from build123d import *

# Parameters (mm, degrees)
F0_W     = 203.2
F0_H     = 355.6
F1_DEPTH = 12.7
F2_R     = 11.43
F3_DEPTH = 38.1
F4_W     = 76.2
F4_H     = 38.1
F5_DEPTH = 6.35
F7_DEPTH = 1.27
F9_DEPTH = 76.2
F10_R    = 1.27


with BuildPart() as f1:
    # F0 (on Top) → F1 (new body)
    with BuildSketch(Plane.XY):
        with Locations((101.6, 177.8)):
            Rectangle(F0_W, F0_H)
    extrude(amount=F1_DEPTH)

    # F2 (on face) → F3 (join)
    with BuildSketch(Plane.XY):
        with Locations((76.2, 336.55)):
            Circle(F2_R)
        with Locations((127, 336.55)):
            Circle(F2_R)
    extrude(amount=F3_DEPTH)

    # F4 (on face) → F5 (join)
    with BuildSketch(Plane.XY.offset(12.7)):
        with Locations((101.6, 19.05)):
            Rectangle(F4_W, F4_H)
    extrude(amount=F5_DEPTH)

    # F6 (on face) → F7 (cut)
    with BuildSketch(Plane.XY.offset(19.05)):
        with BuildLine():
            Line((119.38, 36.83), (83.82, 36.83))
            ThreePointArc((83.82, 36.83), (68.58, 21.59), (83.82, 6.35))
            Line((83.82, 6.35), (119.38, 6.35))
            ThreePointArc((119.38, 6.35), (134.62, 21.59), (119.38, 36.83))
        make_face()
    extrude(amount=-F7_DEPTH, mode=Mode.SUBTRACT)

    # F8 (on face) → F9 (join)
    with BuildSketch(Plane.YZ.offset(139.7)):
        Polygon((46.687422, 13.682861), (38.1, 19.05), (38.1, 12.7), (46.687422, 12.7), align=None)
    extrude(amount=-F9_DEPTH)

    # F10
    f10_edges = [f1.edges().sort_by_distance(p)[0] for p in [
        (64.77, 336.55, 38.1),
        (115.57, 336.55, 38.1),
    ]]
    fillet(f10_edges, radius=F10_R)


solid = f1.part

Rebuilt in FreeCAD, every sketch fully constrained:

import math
import FreeCAD as App
import Part
import Sketcher

V = App.Vector
Q = App.Units.Quantity


def edges_at(feature, points):
    """Names of the edges that pass closest to the given points."""
    edges = feature.Shape.Edges
    near = lambda p: min(range(len(edges)), key=lambda i: edges[i].distToShape(Part.Vertex(*p))[0])
    return sorted({f"Edge{near(p) + 1}" for p in points})

doc = App.newDocument("Part")
params = doc.addObject("Spreadsheet::Sheet", "Params")
for row, (alias, value) in enumerate([
    ("sketch1_width", "8 in"),
    ("sketch1_height", "14 in"),
    ("pad1_length", "0.5 in"),
    ("sketch2_diameter", "0.9 in"),
    ("pad2_length", "1.5 in"),
    ("sketch3_width", "3 in"),
    ("sketch3_height", "1.5 in"),
    ("pad3_length", "0.25 in"),
    ("sketch4_radius", "0.6 in"),
    ("sketch4_width", "1.4 in"),
    ("pocket1_length", "0.05 in"),
    ("sketch5_height", "0.25 in"),
    ("pad4_length", "3 in"),
    ("fillet_radius", "0.05 in"),
], start=1):
    params.set(f"A{row}", alias)
    params.set(f"B{row}", "=" + value)
    params.setAlias(f"B{row}", alias)

body = doc.addObject("PartDesign::Body", "Body")

sketch1 = body.newObject("Sketcher::SketchObject", "Sketch")
sketch1.AttachmentSupport = (doc.getObject("XY_Plane"), [""])
sketch1.MapMode = "FlatFace"
sketch1.addGeometry(Part.LineSegment(V(0, 356, 0), V(0, 0, 0)), False)
sketch1.addGeometry(Part.LineSegment(V(0, 0, 0), V(203, 0, 0)), False)
sketch1.addGeometry(Part.LineSegment(V(203, 0, 0), V(203, 356, 0)), False)
sketch1.addGeometry(Part.LineSegment(V(203, 356, 0), V(0, 356, 0)), False)
sketch1.addConstraint(Sketcher.Constraint("Coincident", 0, 2, 1, 1))
sketch1.addConstraint(Sketcher.Constraint("Coincident", 1, 2, 2, 1))
sketch1.addConstraint(Sketcher.Constraint("Coincident", 2, 2, 3, 1))
sketch1.addConstraint(Sketcher.Constraint("Coincident", 3, 2, 0, 1))
sketch1.addConstraint(Sketcher.Constraint("Vertical", 0))
sketch1.addConstraint(Sketcher.Constraint("Horizontal", 1))
sketch1.addConstraint(Sketcher.Constraint("Vertical", 2))
sketch1.addConstraint(Sketcher.Constraint("Horizontal", 3))
sketch1.addConstraint(Sketcher.Constraint("Coincident", 0, 2, -1, 1))
sketch1.addConstraint(Sketcher.Constraint("DistanceX", 1, 1, 1, 2, Q("8 in")))
sketch1.addConstraint(Sketcher.Constraint("DistanceY", 0, 2, 0, 1, Q("14 in")))
sketch1.setExpression("Constraints[9]", "Params.sketch1_width")
sketch1.setExpression("Constraints[10]", "Params.sketch1_height")
pad1 = body.newObject("PartDesign::Pad", "Pad")
pad1.Profile = sketch1
pad1.setExpression("Length", "Params.pad1_length")

sketch2 = body.newObject("Sketcher::SketchObject", "Sketch001")
sketch2.AttachmentSupport = (doc.getObject("XY_Plane"), [""])
sketch2.MapMode = "FlatFace"
sketch2.addGeometry(Part.Circle(V(76, 337, 0), V(0, 0, 1), 11), False)
sketch2.addGeometry(Part.Circle(V(127, 337, 0), V(0, 0, 1), 11), False)
sketch2.addConstraint(Sketcher.Constraint("Equal", 0, 1))
sketch2.addConstraint(Sketcher.Constraint("Horizontal", 0, 3, 1, 3))
sketch2.addConstraint(Sketcher.Constraint("Diameter", 0, Q("0.9 in")))
sketch2.addConstraint(Sketcher.Constraint("DistanceX", -1, 1, 0, 3, Q("3 in")))
sketch2.addConstraint(Sketcher.Constraint("DistanceX", -1, 1, 1, 3, Q("5 in")))
sketch2.addConstraint(Sketcher.Constraint("DistanceY", -1, 1, 0, 3, Q("13.25 in")))
sketch2.setExpression("Constraints[2]", "Params.sketch2_diameter")
pad2 = body.newObject("PartDesign::Pad", "Pad001")
pad2.Profile = sketch2
pad2.setExpression("Length", "Params.pad2_length")

sketch3 = body.newObject("Sketcher::SketchObject", "Sketch002")
sketch3.AttachmentSupport = (doc.getObject("XY_Plane"), [""])
sketch3.MapMode = "FlatFace"
sketch3.AttachmentOffset = App.Placement(V(0, 0, 0.5 * 25.4), App.Rotation())
sketch3.addGeometry(Part.LineSegment(V(64, 38, 0), V(64, 0, 0)), False)
sketch3.addGeometry(Part.LineSegment(V(64, 0, 0), V(140, 0, 0)), False)
sketch3.addGeometry(Part.LineSegment(V(140, 0, 0), V(140, 38, 0)), False)
sketch3.addGeometry(Part.LineSegment(V(140, 38, 0), V(64, 38, 0)), False)
sketch3.addConstraint(Sketcher.Constraint("Coincident", 0, 2, 1, 1))
sketch3.addConstraint(Sketcher.Constraint("Coincident", 1, 2, 2, 1))
sketch3.addConstraint(Sketcher.Constraint("Coincident", 2, 2, 3, 1))
sketch3.addConstraint(Sketcher.Constraint("Coincident", 3, 2, 0, 1))
sketch3.addConstraint(Sketcher.Constraint("Vertical", 0))
sketch3.addConstraint(Sketcher.Constraint("Horizontal", 1))
sketch3.addConstraint(Sketcher.Constraint("Vertical", 2))
sketch3.addConstraint(Sketcher.Constraint("Horizontal", 3))
sketch3.addConstraint(Sketcher.Constraint("PointOnObject", 0, 2, -1))
sketch3.addConstraint(Sketcher.Constraint("DistanceX", 1, 1, 1, 2, Q("3 in")))
sketch3.addConstraint(Sketcher.Constraint("DistanceY", 0, 2, 0, 1, Q("1.5 in")))
sketch3.addConstraint(Sketcher.Constraint("DistanceX", -1, 1, 0, 2, Q("2.5 in")))
sketch3.setExpression("Constraints[9]", "Params.sketch3_width")
sketch3.setExpression("Constraints[10]", "Params.sketch3_height")
pad3 = body.newObject("PartDesign::Pad", "Pad002")
pad3.Profile = sketch3
pad3.setExpression("Length", "Params.pad3_length")

sketch4 = body.newObject("Sketcher::SketchObject", "Sketch003")
sketch4.AttachmentSupport = (doc.getObject("XY_Plane"), [""])
sketch4.MapMode = "FlatFace"
sketch4.AttachmentOffset = App.Placement(V(0, 0, 0.75 * 25.4), App.Rotation())
sketch4.addGeometry(Part.LineSegment(V(119, 37, 0), V(84, 37, 0)), False)
sketch4.addGeometry(Part.ArcOfCircle(Part.Circle(V(84, 22, 0), V(0, 0, 1), 15), math.radians(90), math.radians(270)), False)
sketch4.addGeometry(Part.LineSegment(V(84, 6, 0), V(119, 6, 0)), False)
sketch4.addGeometry(Part.ArcOfCircle(Part.Circle(V(119, 22, 0), V(0, 0, 1), 15), math.radians(-90), math.radians(90)), False)
sketch4.addConstraint(Sketcher.Constraint("Tangent", 0, 2, 1, 1))
sketch4.addConstraint(Sketcher.Constraint("Tangent", 1, 2, 2, 1))
sketch4.addConstraint(Sketcher.Constraint("Tangent", 2, 2, 3, 1))
sketch4.addConstraint(Sketcher.Constraint("Tangent", 3, 2, 0, 1))
sketch4.addConstraint(Sketcher.Constraint("Horizontal", 0))
sketch4.addConstraint(Sketcher.Constraint("Horizontal", 2))
sketch4.addConstraint(Sketcher.Constraint("Radius", 1, Q("0.6 in")))
sketch4.addConstraint(Sketcher.Constraint("DistanceX", 0, 2, 0, 1, Q("1.4 in")))
sketch4.addConstraint(Sketcher.Constraint("DistanceX", -1, 1, 1, 3, Q("3.3 in")))
sketch4.addConstraint(Sketcher.Constraint("DistanceY", -1, 1, 1, 3, Q("0.85 in")))
sketch4.setExpression("Constraints[6]", "Params.sketch4_radius")
sketch4.setExpression("Constraints[7]", "Params.sketch4_width")
pocket1 = body.newObject("PartDesign::Pocket", "Pocket")
pocket1.Profile = sketch4
pocket1.setExpression("Length", "Params.pocket1_length")

sketch5 = body.newObject("Sketcher::SketchObject", "Sketch004")
sketch5.AttachmentSupport = (doc.getObject("YZ_Plane"), [""])
sketch5.MapMode = "FlatFace"
sketch5.AttachmentOffset = App.Placement(V(0, 0, 5.5 * 25.4), App.Rotation())
sketch5.addGeometry(Part.LineSegment(V(46.7, 13.7, 0), V(38.1, 19.1, 0)), False)
sketch5.addGeometry(Part.LineSegment(V(38.1, 19.1, 0), V(38.1, 12.7, 0)), False)
sketch5.addGeometry(Part.LineSegment(V(38.1, 12.7, 0), V(46.7, 12.7, 0)), False)
sketch5.addGeometry(Part.LineSegment(V(46.7, 12.7, 0), V(46.7, 13.7, 0)), False)
sketch5.addConstraint(Sketcher.Constraint("Coincident", 0, 2, 1, 1))
sketch5.addConstraint(Sketcher.Constraint("Coincident", 1, 2, 2, 1))
sketch5.addConstraint(Sketcher.Constraint("Coincident", 2, 2, 3, 1))
sketch5.addConstraint(Sketcher.Constraint("Coincident", 3, 2, 0, 1))
sketch5.addConstraint(Sketcher.Constraint("Vertical", 1))
sketch5.addConstraint(Sketcher.Constraint("Horizontal", 2))
sketch5.addConstraint(Sketcher.Constraint("Vertical", 3))
sketch5.addConstraint(Sketcher.Constraint("DistanceY", 1, 2, 1, 1, Q("0.25 in")))
sketch5.addConstraint(Sketcher.Constraint("DistanceX", -1, 1, 0, 2, Q("1.5 in")))
sketch5.addConstraint(Sketcher.Constraint("DistanceY", -1, 1, 1, 2, Q("0.5 in")))
sketch5.addConstraint(Sketcher.Constraint("DistanceX", 2, 1, 2, 2, 8.587422))
sketch5.addConstraint(Sketcher.Constraint("DistanceY", 3, 1, 3, 2, 0.982861))
sketch5.setExpression("Constraints[7]", "Params.sketch5_height")
pad4 = body.newObject("PartDesign::Pad", "Pad003")
pad4.Profile = sketch5
pad4.setExpression("Length", "Params.pad4_length")
pad4.Reversed = True
doc.recompute()

fillet = body.newObject("PartDesign::Fillet", "Fillet")
fillet.Base = (pad4, edges_at(pad4, [(64.77, 336.55, 38.1), (115.57, 336.55, 38.1)]))
fillet.setExpression("Radius", "Params.fillet_radius")

doc.recompute()
